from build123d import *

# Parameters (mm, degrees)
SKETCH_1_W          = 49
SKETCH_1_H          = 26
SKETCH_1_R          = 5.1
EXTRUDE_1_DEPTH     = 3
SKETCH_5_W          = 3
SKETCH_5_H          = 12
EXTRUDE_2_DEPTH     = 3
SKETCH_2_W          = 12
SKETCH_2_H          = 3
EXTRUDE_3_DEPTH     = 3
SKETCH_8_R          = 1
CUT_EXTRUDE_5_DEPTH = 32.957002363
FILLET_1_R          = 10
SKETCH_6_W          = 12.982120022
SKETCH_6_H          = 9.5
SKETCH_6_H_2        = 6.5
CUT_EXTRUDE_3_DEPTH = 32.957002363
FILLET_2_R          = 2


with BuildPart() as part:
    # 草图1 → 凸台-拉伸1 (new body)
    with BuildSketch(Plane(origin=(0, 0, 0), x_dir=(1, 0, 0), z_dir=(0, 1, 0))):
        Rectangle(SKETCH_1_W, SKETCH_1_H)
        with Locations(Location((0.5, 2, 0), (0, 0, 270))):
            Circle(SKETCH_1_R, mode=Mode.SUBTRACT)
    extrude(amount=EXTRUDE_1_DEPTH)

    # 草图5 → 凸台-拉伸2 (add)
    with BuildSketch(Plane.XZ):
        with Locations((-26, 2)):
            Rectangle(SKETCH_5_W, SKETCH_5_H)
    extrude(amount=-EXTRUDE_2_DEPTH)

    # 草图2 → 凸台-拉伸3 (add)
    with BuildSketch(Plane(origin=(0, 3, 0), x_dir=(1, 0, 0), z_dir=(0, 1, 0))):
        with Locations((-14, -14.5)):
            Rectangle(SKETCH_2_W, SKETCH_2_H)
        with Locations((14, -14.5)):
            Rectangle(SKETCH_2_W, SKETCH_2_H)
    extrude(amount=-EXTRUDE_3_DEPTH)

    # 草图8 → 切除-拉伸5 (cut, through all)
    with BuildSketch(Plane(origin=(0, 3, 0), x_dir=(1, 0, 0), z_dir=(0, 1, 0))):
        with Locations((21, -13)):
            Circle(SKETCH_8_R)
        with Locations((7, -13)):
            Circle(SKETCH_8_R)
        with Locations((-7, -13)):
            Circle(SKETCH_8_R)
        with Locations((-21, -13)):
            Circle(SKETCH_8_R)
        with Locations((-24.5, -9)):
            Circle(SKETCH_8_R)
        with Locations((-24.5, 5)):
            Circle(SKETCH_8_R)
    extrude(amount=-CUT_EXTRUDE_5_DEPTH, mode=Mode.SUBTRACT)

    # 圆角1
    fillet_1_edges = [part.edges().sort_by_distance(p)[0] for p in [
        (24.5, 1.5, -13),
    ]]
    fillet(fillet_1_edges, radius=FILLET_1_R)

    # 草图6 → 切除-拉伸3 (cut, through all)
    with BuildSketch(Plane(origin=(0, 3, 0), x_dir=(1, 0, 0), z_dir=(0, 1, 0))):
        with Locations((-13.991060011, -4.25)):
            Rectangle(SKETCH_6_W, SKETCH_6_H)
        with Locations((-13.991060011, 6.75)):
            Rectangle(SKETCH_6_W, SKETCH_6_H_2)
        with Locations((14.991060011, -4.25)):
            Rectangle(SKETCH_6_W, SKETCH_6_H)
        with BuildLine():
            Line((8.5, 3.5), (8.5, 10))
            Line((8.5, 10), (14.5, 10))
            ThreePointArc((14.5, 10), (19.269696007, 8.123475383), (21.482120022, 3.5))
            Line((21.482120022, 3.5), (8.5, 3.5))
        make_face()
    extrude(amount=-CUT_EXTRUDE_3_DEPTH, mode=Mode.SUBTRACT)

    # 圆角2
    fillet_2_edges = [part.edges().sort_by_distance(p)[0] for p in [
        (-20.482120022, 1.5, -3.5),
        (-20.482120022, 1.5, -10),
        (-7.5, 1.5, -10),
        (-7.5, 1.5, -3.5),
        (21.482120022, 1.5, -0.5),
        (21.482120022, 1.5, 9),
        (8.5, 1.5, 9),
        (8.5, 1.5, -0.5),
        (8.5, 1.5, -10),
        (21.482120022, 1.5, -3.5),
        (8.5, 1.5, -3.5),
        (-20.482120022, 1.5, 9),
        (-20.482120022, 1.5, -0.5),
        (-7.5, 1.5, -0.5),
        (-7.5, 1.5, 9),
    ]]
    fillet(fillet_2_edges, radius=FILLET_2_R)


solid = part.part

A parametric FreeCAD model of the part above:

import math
import FreeCAD as App
import Part
import Sketcher

V = App.Vector


def edges_at(feature, points):
    """Names of the edges that pass closest to the given points."""
    edges = feature.Shape.Edges
    near = lambda p: min(range(len(edges)), key=lambda i: edges[i].distToShape(Part.Vertex(*p))[0])
    return sorted({f"Edge{near(p) + 1}" for p in points})

doc = App.newDocument("Part")
body = doc.addObject("PartDesign::Body", "Body")

# Sketch on XZ plane
sketch1 = body.newObject("Sketcher::SketchObject", "Sketch")
sketch1.AttachmentSupport = (doc.getObject("XZ_Plane"), [""])
sketch1.MapMode = "FlatFace"
sketch1.addGeometry(Part.LineSegment(V(-24, -13, 0), V(-24, 13, 0)), False)
sketch1.addGeometry(Part.LineSegment(V(-24, 13, 0), V(24, 13, 0)), False)
sketch1.addGeometry(Part.LineSegment(V(24, 13, 0), V(24, -13, 0)), False)
sketch1.addGeometry(Part.LineSegment(V(24, -13, 0), V(-24, -13, 0)), False)
sketch1.addGeometry(Part.Circle(V(0, -2, 0), V(0, 0, 1), 5), False)
sketch1.addConstraint(Sketcher.Constraint("Coincident", 0, 2, 1, 1))
sketch1.addConstraint(Sketcher.Constraint("Coincident", 1, 2, 2, 1))
sketch1.addConstraint(Sketcher.Constraint("Coincident", 2, 2, 3, 1))
sketch1.addConstraint(Sketcher.Constraint("Coincident", 3, 2, 0, 1))
sketch1.addConstraint(Sketcher.Constraint("Vertical", 0))
sketch1.addConstraint(Sketcher.Constraint("Horizontal", 1))
sketch1.addConstraint(Sketcher.Constraint("Vertical", 2))
sketch1.addConstraint(Sketcher.Constraint("Horizontal", 3))
sketch1.addConstraint(Sketcher.Constraint("Symmetric", 0, 2, 2, 2, -1, 1))
sketch1.addConstraint(Sketcher.Constraint("Diameter", 4, 10.2))
sketch1.addConstraint(Sketcher.Constraint("DistanceX", 1, 1, 1, 2, 49.0))
sketch1.addConstraint(Sketcher.Constraint("DistanceY", 0, 1, 0, 2, 26.0))
sketch1.addConstraint(Sketcher.Constraint("DistanceY", 4, 3, -1, 1, 2.0))
sketch1.addConstraint(Sketcher.Constraint("DistanceX", 0, 2, 4, 3, 25.0))
pad1 = body.newObject("PartDesign::Pad", "Pad")
pad1.Profile = sketch1
pad1.Length = 3
pad1.Reversed = True

# Sketch on XZ plane
sketch2 = body.newObject("Sketcher::SketchObject", "Sketch001")
sketch2.AttachmentSupport = (doc.getObject("XZ_Plane"), [""])
sketch2.MapMode = "FlatFace"
sketch2.addGeometry(Part.LineSegment(V(-27.5, 8, 0), V(-27.5, -4, 0)), False)
sketch2.addGeometry(Part.LineSegment(V(-27.5, -4, 0), V(-24.5, -4, 0)), False)
sketch2.addGeometry(Part.LineSegment(V(-24.5, -4, 0), V(-24.5, 8, 0)), False)
sketch2.addGeometry(Part.LineSegment(V(-24.5, 8, 0), V(-27.5, 8, 0)), False)
sketch2.addConstraint(Sketcher.Constraint("Coincident", 0, 2, 1, 1))
sketch2.addConstraint(Sketcher.Constraint("Coincident", 1, 2, 2, 1))
sketch2.addConstraint(Sketcher.Constraint("Coincident", 2, 2, 3, 1))
sketch2.addConstraint(Sketcher.Constraint("Coincident", 3, 2, 0, 1))
sketch2.addConstraint(Sketcher.Constraint("Vertical", 0))
sketch2.addConstraint(Sketcher.Constraint("Horizontal", 1))
sketch2.addConstraint(Sketcher.Constraint("Vertical", 2))
sketch2.addConstraint(Sketcher.Constraint("Horizontal", 3))
sketch2.addConstraint(Sketcher.Constraint("DistanceX", 1, 1, 1, 2, 3.0))
sketch2.addConstraint(Sketcher.Constraint("DistanceY", 0, 2, 0, 1, 12.0))
sketch2.addConstraint(Sketcher.Constraint("DistanceY", 0, 2, -1, 1, 4.0))
sketch2.addConstraint(Sketcher.Constraint("DistanceX", 0, 2, -1, 1, 27.5))
pad2 = body.newObject("PartDesign::Pad", "Pad001")
pad2.Profile = sketch2
pad2.Length = 3
pad2.Reversed = True

# Sketch on XZ plane
sketch3 = body.newObject("Sketcher::SketchObject", "Sketch002")
sketch3.AttachmentSupport = (doc.getObject("XZ_Plane"), [""])
sketch3.MapMode = "FlatFace"
sketch3.AttachmentOffset = App.Placement(V(0, 0, -3), App.Rotation())
sketch3.addGeometry(Part.LineSegment(V(-20, 13, 0), V(-20, 16, 0)), False)
sketch3.addGeometry(Part.LineSegment(V(-20, 16, 0), V(-8, 16, 0)), False)
sketch3.addGeometry(Part.LineSegment(V(-8, 16, 0), V(-8, 13, 0)), False)
sketch3.addGeometry(Part.LineSegment(V(-8, 13, 0), V(-20, 13, 0)), False)
sketch3.addGeometry(Part.LineSegment(V(8, 13, 0), V(8, 16, 0)), False)
sketch3.addGeometry(Part.LineSegment(V(8, 16, 0), V(20, 16, 0)), False)
sketch3.addGeometry(Part.LineSegment(V(20, 16, 0), V(20, 13, 0)), False)
sketch3.addGeometry(Part.LineSegment(V(20, 13, 0), V(8, 13, 0)), False)
sketch3.addConstraint(Sketcher.Constraint("Coincident", 0, 2, 1, 1))
sketch3.addConstraint(Sketcher.Constraint("Coincident", 1, 2, 2, 1))
sketch3.addConstraint(Sketcher.Constraint("Coincident", 2, 2, 3, 1))
sketch3.addConstraint(Sketcher.Constraint("Coincident", 3, 2, 0, 1))
sketch3.addConstraint(Sketcher.Constraint("Coincident", 4, 2, 5, 1))
sketch3.addConstraint(Sketcher.Constraint("Coincident", 5, 2, 6, 1))
sketch3.addConstraint(Sketcher.Constraint("Coincident", 6, 2, 7, 1))
sketch3.addConstraint(Sketcher.Constraint("Coincident", 7, 2, 4, 1))
sketch3.addConstraint(Sketcher.Constraint("Vertical", 0))
sketch3.addConstraint(Sketcher.Constraint("Horizontal", 1))
sketch3.addConstraint(Sketcher.Constraint("Vertical", 2))
sketch3.addConstraint(Sketcher.Constraint("Horizontal", 3))
sketch3.addConstraint(Sketcher.Constraint("Vertical", 4))
sketch3.addConstraint(Sketcher.Constraint("Horizontal", 5))
sketch3.addConstraint(Sketcher.Constraint("Vertical", 6))
sketch3.addConstraint(Sketcher.Constraint("Horizontal", 7))
sketch3.addConstraint(Sketcher.Constraint("Symmetric", 1, 2, 4, 2, -2))
sketch3.addConstraint(Sketcher.Constraint("Symmetric", 3, 2, 6, 2, -2))
sketch3.addConstraint(Sketcher.Constraint("DistanceX", 1, 1, 1, 2, 12.0))
sketch3.addConstraint(Sketcher.Constraint("DistanceY", 0, 1, 0, 2, 3.0))
sketch3.addConstraint(Sketcher.Constraint("DistanceX", 0, 2, -1, 1, 20.0))
sketch3.addConstraint(Sketcher.Constraint("DistanceY", -1, 1, 0, 2, 16.0))
pad3 = body.newObject("PartDesign::Pad", "Pad002")
pad3.Profile = sketch3
pad3.Length = 3

# Sketch on XZ plane
sketch4 = body.newObject("Sketcher::SketchObject", "Sketch003")
sketch4.AttachmentSupport = (doc.getObject("XZ_Plane"), [""])
sketch4.MapMode = "FlatFace"
sketch4.AttachmentOffset = App.Placement(V(0, 0, -3), App.Rotation())
sketch4.addGeometry(Part.Circle(V(21, 13, 0), V(0, 0, 1), 1), False)
sketch4.addGeometry(Part.Circle(V(7, 13, 0), V(0, 0, 1), 1), False)
sketch4.addGeometry(Part.Circle(V(-7, 13, 0), V(0, 0, 1), 1), False)
sketch4.addGeometry(Part.Circle(V(-21, 13, 0), V(0, 0, 1), 1), False)
sketch4.addGeometry(Part.Circle(V(-24.5, 9, 0), V(0, 0, 1), 1), False)
sketch4.addGeometry(Part.Circle(V(-24.5, -5, 0), V(0, 0, 1), 1), False)
sketch4.addConstraint(Sketcher.Constraint("Equal", 0, 1))
sketch4.addConstraint(Sketcher.Constraint("Equal", 1, 2))
sketch4.addConstraint(Sketcher.Constraint("Equal", 2, 3))
sketch4.addConstraint(Sketcher.Constraint("Equal", 3, 4))
sketch4.addConstraint(Sketcher.Constraint("Equal", 4, 5))
sketch4.addConstraint(Sketcher.Constraint("Symmetric", 1, 3, 2, 3, -2))
sketch4.addConstraint(Sketcher.Constraint("Symmetric", 0, 3, 3, 3, -2))
sketch4.addConstraint(Sketcher.Constraint("Horizontal", 0, 3, 1, 3))
sketch4.addConstraint(Sketcher.Constraint("Vertical", 4, 3, 5, 3))
sketch4.addConstraint(Sketcher.Constraint("Diameter", 0, 2.0))
sketch4.addConstraint(Sketcher.Constraint("DistanceX", -1, 1, 0, 3, 21.0))
sketch4.addConstraint(Sketcher.Constraint("DistanceY", -1, 1, 0, 3, 13.0))
sketch4.addConstraint(Sketcher.Constraint("DistanceX", -1, 1, 1, 3, 7.0))
sketch4.addConstraint(Sketcher.Constraint("DistanceY", -1, 1, 4, 3, 9.0))
sketch4.addConstraint(Sketcher.Constraint("DistanceY", 5, 3, -1, 1, 5.0))
sketch4.addConstraint(Sketcher.Constraint("DistanceX", 4, 3, -1, 1, 24.5))
pocket1 = body.newObject("PartDesign::Pocket", "Pocket")
pocket1.Profile = sketch4
pocket1.Type = "ThroughAll"
pocket1.Reversed = True
doc.recompute()

fillet = body.newObject("PartDesign::Fillet", "Fillet")
fillet.Base = (pocket1, edges_at(pocket1, [(24.5, 1.5, -13)]))
fillet.Radius = 10

# Sketch on XZ plane
sketch5 = body.newObject("Sketcher::SketchObject", "Sketch004")
sketch5.AttachmentSupport = (doc.getObject("XZ_Plane"), [""])
sketch5.MapMode = "FlatFace"
sketch5.AttachmentOffset = App.Placement(V(0, 0, -3), App.Rotation())
sketch5.addGeometry(Part.LineSegment(V(-20, 0, 0), V(-20, 9, 0)), False)
sketch5.addGeometry(Part.LineSegment(V(-20, 9, 0), V(-8, 9, 0)), False)
sketch5.addGeometry(Part.LineSegment(V(-8, 9, 0), V(-8, 0, 0)), False)
sketch5.addGeometry(Part.LineSegment(V(-8, 0, 0), V(-20, 0, 0)), False)
sketch5.addGeometry(Part.LineSegment(V(-20, -10, 0), V(-20, -4, 0)), False)
sketch5.addGeometry(Part.LineSegment(V(-20, -4, 0), V(-8, -4, 0)), False)
sketch5.addGeometry(Part.LineSegment(V(-8, -4, 0), V(-8, -10, 0)), False)
sketch5.addGeometry(Part.LineSegment(V(-8, -10, 0), V(-20, -10, 0)), False)
sketch5.addGeometry(Part.LineSegment(V(8, 0, 0), V(8, 9, 0)), False)
sketch5.addGeometry(Part.LineSegment(V(8, 9, 0), V(21, 9, 0)), False)
sketch5.addGeometry(Part.LineSegment(V(21, 9, 0), V(21, 0, 0)), False)
sketch5.addGeometry(Part.LineSegment(V(21, 0, 0), V(8, 0, 0)), False)
sketch5.addGeometry(Part.LineSegment(V(8, -10, 0), V(8, -4, 0)), False)
sketch5.addGeometry(Part.LineSegment(V(8, -4, 0), V(21, -4, 0)), False)
sketch5.addGeometry(Part.ArcOfCircle(Part.Circle(V(14, -3, 0), V(0, 0, 1), 7), math.radians(-90), math.radians(-4)), False)
sketch5.addGeometry(Part.LineSegment(V(14, -10, 0), V(8, -10, 0)), False)
sketch5.addConstraint(Sketcher.Constraint("Coincident", 0, 2, 1, 1))
sketch5.addConstraint(Sketcher.Constraint("Coincident", 1, 2, 2, 1))
sketch5.addConstraint(Sketcher.Constraint("Coincident", 2, 2, 3, 1))
sketch5.addConstraint(Sketcher.Constraint("Coincident", 3, 2, 0, 1))
sketch5.addConstraint(Sketcher.Constraint("Coincident", 4, 2, 5, 1))
sketch5.addConstraint(Sketcher.Constraint("Coincident", 5, 2, 6, 1))
sketch5.addConstraint(Sketcher.Constraint("Coincident", 6, 2, 7, 1))
sketch5.addConstraint(Sketcher.Constraint("Coincident", 7, 2, 4, 1))
sketch5.addConstraint(Sketcher.Constraint("Coincident", 8, 2, 9, 1))
sketch5.addConstraint(Sketcher.Constraint("Coincident", 9, 2, 10, 1))
sketch5.addConstraint(Sketcher.Constraint("Coincident", 10, 2, 11, 1))
sketch5.addConstraint(Sketcher.Constraint("Coincident", 11, 2, 8, 1))
sketch5.addConstraint(Sketcher.Constraint("Coincident", 12, 2, 13, 1))
sketch5.addConstraint(Sketcher.Constraint("Coincident", 13, 2, 14, 2))
sketch5.addConstraint(Sketcher.Constraint("Tangent", 14, 1, 15, 1))
sketch5.addConstraint(Sketcher.Constraint("Coincident", 15, 2, 12, 1))
sketch5.addConstraint(Sketcher.Constraint("Vertical", 0))
sketch5.addConstraint(Sketcher.Constraint("Horizontal", 1))
sketch5.addConstraint(Sketcher.Constraint("Vertical", 2))
sketch5.addConstraint(Sketcher.Constraint("Horizontal", 3))
sketch5.addConstraint(Sketcher.Constraint("Vertical", 4))
sketch5.addConstraint(Sketcher.Constraint("Horizontal", 5))
sketch5.addConstraint(Sketcher.Constraint("Vertical", 6))
sketch5.addConstraint(Sketcher.Constraint("Horizontal", 7))
sketch5.addConstraint(Sketcher.Constraint("Vertical", 8))
sketch5.addConstraint(Sketcher.Constraint("Horizontal", 9))
sketch5.addConstraint(Sketcher.Constraint("Vertical", 10))
sketch5.addConstraint(Sketcher.Constraint("Horizontal", 11))
sketch5.addConstraint(Sketcher.Constraint("Vertical", 12))
sketch5.addConstraint(Sketcher.Constraint("Horizontal", 13))
sketch5.addConstraint(Sketcher.Constraint("Horizontal", 15))
sketch5.addConstraint(Sketcher.Constraint("Horizontal", 1, 2, 8, 2))
sketch5.addConstraint(Sketcher.Constraint("Horizontal", 3, 2, 10, 2))
sketch5.addConstraint(Sketcher.Constraint("Horizontal", 5, 2, 12, 2))
sketch5.addConstraint(Sketcher.Constraint("Horizontal", 7, 2, 14, 1))
sketch5.addConstraint(Sketcher.Constraint("Vertical", 3, 2, 4, 2))
sketch5.addConstraint(Sketcher.Constraint("Vertical", 2, 2, 5, 2))
sketch5.addConstraint(Sketcher.Constraint("Vertical", 11, 2, 12, 2))
sketch5.addConstraint(Sketcher.Constraint("Vertical", 10, 2, 13, 2))
sketch5.addConstraint(Sketcher.Constraint("Equal", 7, 9))
sketch5.addConstraint(Sketcher.Constraint("Radius", 14, 7.0))
sketch5.addConstraint(Sketcher.Constraint("DistanceX", 15, 2, 15, 1, 6.0))
sketch5.addConstraint(Sketcher.Constraint("DistanceY", 0, 1, 0, 2, 9.5))
sketch5.addConstraint(Sketcher.Constraint("DistanceY", 4, 1, 4, 2, 6.5))
sketch5.addConstraint(Sketcher.Constraint("DistanceY", 14, 3, -1, 1, 3.0))
sketch5.addConstraint(Sketcher.Constraint("DistanceY", -1, 1, 0, 2, 9.0))
sketch5.addConstraint(Sketcher.Constraint("DistanceX", 1, 2, 14, 3, 22.0))
sketch5.addConstraint(Sketcher.Constraint("DistanceX", -1, 1, 14, 3, 14.5))
pocket2 = body.newObject("PartDesign::Pocket", "Pocket001")
pocket2.Profile = sketch5
pocket2.Type = "ThroughAll"
pocket2.Reversed = True
doc.recompute()

fillet2 = body.newObject("PartDesign::Fillet", "Fillet001")
fillet2.Base = (pocket2, edges_at(pocket2, [
    (-20.482, 1.5, -3.5),
    (-20.482, 1.5, -10),
    (-7.5, 1.5, -10),
    (-7.5, 1.5, -3.5),
    (21.482, 1.5, -0.5),
    (21.482, 1.5, 9),
    (8.5, 1.5, 9),
    (8.5, 1.5, -0.5),
    (8.5, 1.5, -10),
    (21.482, 1.5, -3.5),
    (8.5, 1.5, -3.5),
    (-20.482, 1.5, 9),
    (-20.482, 1.5, -0.5),
    (-7.5, 1.5, -0.5),
    (-7.5, 1.5, 9),
]))
fillet2.Radius = 2

doc.recompute()
